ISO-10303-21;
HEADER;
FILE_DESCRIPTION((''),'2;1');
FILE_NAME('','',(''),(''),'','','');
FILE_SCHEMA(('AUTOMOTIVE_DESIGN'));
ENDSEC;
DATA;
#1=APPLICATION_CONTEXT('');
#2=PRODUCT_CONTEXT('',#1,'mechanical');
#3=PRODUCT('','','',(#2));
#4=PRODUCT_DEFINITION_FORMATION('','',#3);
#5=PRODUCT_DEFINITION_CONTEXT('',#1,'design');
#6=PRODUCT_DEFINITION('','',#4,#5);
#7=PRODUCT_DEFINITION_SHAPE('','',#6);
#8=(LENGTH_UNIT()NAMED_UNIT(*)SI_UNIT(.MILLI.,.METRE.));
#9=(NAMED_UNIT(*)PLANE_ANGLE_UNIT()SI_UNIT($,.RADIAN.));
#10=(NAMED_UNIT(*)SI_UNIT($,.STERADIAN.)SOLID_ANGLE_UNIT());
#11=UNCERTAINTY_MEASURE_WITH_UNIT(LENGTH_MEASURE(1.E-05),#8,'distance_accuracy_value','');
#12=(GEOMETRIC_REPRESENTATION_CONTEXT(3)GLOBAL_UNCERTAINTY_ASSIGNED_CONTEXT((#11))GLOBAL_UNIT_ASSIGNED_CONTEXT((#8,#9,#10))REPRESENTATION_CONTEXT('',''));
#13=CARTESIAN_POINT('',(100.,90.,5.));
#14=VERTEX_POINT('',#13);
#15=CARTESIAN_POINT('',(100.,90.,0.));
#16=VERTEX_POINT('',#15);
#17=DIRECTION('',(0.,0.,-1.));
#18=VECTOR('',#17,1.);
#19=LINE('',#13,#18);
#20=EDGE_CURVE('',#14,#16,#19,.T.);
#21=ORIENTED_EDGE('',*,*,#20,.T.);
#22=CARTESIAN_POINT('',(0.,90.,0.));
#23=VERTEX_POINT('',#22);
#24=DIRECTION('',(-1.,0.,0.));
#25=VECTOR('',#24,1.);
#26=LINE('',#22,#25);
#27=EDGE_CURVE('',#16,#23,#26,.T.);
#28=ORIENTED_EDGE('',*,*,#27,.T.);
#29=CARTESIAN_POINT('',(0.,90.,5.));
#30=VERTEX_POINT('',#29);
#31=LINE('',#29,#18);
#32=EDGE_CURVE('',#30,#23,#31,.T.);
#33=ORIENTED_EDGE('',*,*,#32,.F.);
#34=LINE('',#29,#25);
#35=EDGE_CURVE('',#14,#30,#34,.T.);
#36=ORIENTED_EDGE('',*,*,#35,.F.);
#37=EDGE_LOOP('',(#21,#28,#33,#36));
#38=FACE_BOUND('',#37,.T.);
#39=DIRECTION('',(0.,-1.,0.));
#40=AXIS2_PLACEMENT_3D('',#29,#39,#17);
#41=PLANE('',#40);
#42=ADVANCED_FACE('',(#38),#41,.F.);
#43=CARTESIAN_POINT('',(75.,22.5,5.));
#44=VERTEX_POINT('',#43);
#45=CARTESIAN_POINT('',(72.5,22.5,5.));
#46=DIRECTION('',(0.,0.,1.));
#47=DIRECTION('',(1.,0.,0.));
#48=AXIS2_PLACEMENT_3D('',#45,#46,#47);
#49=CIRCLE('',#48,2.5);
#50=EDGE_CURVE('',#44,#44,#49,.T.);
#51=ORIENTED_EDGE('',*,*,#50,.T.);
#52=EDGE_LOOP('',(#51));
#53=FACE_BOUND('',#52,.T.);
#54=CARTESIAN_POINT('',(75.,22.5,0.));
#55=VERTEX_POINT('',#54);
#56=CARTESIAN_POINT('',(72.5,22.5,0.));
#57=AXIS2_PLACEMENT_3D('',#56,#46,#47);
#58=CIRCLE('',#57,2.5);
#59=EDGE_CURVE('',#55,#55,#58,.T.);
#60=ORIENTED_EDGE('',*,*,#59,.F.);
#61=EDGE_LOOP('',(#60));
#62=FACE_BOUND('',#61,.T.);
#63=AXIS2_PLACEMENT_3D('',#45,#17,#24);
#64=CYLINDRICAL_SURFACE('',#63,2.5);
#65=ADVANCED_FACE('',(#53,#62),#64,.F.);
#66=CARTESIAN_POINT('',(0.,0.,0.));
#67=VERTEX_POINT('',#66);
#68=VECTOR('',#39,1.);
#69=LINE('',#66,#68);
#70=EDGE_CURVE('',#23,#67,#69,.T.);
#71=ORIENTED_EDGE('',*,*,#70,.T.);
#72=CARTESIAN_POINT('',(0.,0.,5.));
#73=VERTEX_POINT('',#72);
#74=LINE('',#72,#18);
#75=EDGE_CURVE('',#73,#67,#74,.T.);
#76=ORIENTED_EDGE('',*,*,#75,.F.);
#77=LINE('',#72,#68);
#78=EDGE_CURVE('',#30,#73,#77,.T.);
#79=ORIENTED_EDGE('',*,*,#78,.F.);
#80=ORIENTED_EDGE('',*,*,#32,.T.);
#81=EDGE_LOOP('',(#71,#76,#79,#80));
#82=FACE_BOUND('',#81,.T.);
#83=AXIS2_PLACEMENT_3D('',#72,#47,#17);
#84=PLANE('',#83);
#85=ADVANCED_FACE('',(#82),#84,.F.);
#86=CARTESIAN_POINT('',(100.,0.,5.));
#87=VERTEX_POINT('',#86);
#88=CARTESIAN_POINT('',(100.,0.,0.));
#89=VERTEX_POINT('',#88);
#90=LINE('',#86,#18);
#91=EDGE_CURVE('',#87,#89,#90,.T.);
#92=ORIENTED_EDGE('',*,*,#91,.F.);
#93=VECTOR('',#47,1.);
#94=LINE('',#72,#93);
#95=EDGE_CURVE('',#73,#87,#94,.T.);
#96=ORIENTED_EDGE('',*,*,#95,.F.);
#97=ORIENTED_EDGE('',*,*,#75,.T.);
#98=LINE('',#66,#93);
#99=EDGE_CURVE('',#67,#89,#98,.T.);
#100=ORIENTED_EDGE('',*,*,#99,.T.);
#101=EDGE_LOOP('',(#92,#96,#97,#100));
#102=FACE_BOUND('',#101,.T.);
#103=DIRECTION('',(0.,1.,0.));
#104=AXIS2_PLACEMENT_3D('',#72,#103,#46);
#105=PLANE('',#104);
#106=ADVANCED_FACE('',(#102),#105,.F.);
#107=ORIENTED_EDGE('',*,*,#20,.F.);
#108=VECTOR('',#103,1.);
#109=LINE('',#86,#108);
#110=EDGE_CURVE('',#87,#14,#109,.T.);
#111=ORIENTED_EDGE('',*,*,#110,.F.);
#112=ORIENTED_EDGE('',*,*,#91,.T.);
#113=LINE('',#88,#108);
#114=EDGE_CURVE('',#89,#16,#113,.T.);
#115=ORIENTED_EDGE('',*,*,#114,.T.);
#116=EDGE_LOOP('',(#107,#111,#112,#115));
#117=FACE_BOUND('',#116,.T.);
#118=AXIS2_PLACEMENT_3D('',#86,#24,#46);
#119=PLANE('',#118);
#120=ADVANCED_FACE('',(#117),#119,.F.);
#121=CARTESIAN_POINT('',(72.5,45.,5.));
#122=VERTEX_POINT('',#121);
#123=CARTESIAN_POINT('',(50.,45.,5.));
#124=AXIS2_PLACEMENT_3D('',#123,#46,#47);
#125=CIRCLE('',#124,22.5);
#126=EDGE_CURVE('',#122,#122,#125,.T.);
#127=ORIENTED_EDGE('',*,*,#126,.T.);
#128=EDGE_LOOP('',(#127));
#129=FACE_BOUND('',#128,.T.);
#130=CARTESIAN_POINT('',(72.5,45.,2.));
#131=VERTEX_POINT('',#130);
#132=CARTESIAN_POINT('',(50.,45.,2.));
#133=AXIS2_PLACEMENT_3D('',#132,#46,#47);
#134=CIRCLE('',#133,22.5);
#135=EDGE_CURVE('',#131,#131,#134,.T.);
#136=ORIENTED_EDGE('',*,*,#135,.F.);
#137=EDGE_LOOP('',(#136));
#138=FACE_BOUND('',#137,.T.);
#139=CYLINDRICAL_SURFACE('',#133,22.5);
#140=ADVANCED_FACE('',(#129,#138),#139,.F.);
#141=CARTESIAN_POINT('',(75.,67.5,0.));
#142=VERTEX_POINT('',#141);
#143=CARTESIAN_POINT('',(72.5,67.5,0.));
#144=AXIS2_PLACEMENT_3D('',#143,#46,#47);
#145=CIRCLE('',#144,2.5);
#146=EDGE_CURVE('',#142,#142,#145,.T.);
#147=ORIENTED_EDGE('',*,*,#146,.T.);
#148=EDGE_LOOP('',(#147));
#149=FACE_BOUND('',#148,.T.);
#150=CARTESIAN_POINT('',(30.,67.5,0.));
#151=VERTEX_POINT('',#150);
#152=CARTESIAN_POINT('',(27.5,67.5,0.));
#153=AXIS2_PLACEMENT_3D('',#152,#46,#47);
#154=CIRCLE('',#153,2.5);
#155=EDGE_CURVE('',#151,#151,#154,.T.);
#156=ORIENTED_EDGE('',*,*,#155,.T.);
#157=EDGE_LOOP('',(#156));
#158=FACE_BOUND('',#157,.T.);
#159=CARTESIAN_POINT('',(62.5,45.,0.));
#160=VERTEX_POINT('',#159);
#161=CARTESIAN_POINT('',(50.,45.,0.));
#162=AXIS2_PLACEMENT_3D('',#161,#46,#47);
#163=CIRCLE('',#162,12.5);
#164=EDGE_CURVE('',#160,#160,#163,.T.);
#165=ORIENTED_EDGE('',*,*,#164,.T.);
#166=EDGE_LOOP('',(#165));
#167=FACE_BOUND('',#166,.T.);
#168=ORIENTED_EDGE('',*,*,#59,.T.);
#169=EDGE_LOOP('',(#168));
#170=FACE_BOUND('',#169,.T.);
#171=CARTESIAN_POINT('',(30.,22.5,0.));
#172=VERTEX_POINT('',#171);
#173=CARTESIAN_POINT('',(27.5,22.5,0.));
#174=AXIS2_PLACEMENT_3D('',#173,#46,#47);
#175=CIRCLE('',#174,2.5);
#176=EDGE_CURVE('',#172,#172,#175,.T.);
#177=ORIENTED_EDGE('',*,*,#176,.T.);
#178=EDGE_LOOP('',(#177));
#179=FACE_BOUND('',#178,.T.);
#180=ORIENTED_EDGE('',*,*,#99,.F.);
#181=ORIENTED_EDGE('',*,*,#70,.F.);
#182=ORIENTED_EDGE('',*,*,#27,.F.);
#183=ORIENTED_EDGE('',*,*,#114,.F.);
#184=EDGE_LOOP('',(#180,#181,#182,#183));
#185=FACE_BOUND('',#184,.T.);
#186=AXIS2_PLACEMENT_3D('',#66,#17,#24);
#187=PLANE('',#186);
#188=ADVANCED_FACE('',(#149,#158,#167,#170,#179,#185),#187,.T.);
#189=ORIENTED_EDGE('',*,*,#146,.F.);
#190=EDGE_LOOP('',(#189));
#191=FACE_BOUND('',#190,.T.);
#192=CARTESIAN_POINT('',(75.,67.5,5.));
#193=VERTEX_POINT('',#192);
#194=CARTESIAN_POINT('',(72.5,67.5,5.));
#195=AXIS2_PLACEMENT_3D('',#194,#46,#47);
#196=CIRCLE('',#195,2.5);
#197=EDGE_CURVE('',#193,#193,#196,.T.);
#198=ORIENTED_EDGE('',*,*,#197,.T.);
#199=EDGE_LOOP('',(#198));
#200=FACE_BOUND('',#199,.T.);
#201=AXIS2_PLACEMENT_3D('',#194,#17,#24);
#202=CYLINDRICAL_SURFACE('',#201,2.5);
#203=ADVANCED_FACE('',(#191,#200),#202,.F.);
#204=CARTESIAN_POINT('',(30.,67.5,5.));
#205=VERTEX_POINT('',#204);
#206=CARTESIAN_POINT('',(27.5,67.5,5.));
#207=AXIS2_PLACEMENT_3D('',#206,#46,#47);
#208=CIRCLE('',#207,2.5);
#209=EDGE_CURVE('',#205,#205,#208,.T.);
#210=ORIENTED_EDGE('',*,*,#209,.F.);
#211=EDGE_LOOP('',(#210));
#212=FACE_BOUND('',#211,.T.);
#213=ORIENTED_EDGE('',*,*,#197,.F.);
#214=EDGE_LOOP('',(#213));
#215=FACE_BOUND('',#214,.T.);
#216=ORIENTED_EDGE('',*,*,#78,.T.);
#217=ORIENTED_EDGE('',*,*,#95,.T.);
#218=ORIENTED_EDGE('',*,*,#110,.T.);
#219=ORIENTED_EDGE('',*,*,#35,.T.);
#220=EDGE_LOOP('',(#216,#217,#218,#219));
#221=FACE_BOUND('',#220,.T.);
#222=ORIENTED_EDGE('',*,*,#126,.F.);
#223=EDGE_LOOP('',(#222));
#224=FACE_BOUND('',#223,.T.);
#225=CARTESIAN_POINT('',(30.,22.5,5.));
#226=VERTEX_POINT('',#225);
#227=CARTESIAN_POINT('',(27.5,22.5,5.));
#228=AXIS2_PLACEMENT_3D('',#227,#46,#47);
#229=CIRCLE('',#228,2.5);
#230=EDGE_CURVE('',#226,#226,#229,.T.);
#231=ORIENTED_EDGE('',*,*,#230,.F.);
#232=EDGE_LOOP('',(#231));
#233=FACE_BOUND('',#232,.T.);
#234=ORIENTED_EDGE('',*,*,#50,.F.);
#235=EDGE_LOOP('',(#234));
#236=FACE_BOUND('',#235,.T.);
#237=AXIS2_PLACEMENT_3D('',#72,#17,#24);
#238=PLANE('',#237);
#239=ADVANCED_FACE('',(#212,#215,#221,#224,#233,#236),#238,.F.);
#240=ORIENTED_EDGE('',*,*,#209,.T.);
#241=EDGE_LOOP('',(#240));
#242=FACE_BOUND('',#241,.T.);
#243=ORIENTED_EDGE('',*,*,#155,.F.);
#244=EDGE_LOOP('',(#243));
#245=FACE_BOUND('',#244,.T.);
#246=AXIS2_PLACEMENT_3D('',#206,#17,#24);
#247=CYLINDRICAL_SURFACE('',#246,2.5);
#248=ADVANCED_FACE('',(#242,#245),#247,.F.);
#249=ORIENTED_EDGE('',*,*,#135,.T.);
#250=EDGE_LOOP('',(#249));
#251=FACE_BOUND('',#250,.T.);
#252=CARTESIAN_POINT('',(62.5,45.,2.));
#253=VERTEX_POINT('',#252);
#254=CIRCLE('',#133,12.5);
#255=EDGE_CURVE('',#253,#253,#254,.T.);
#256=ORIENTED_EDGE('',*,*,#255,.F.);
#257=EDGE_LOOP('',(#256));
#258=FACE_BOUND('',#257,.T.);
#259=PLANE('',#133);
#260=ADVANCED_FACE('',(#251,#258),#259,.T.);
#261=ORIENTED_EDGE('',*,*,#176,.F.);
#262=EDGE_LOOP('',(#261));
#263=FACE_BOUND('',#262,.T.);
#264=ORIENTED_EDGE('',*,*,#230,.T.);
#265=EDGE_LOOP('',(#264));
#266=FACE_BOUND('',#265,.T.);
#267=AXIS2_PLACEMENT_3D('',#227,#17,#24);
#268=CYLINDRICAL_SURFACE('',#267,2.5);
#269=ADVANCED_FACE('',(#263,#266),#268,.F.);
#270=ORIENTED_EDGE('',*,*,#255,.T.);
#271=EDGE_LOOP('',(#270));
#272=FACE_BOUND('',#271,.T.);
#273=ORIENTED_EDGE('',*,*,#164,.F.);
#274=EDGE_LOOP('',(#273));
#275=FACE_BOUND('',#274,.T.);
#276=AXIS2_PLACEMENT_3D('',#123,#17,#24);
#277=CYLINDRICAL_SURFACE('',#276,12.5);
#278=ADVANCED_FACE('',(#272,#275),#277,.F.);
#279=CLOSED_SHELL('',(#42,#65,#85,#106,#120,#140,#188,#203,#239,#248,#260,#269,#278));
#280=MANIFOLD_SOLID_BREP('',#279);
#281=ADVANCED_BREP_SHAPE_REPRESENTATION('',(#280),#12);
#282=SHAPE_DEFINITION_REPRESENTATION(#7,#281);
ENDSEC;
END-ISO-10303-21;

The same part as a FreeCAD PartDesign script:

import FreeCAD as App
import Part
import Sketcher
Q = App.Units.Quantity


def add_polygon(sketch, points):
    """Adds a closed chain of lines whose ends are joined by coincident constraints."""
    first, n = sketch.GeometryCount, len(points)
    for a, b in zip(points, points[1:] + points[:1]):
        sketch.addGeometry(Part.LineSegment(App.Vector(*a, 0), App.Vector(*b, 0)), False)
    for i in range(n):
        sketch.addConstraint(Sketcher.Constraint("Coincident", first + i, 2, first + (i + 1) % n, 1))

doc = App.newDocument("Part")
params = doc.addObject("Spreadsheet::Sheet", "Params")
for row, (alias, value) in enumerate([
    ("sketch1_diameter", "5 mm"),
    ("sketch1_diameter2", "25 mm"),
    ("sketch1_width", "100 mm"),
    ("sketch1_height", "90 mm"),
    ("pad1_length", "5 mm"),
    ("sketch2_diameter", "45 mm"),
    ("pocket1_length", "3 mm"),
], start=1):
    params.set(f"A{row}", alias)
    params.set(f"B{row}", "=" + value)
    params.setAlias(f"B{row}", alias)

body = doc.addObject("PartDesign::Body", "Body")

# Sketch on XY plane
sketch1 = body.newObject("Sketcher::SketchObject", "Sketch")
sketch1.AttachmentSupport = (doc.getObject("XY_Plane"), [""])
sketch1.MapMode = "FlatFace"
add_polygon(sketch1, [(0, 90), (0, 0), (100, 0), (100, 90)])  # lines 0-3
sketch1.addGeometry(Part.Circle(App.Vector(27.5, 22.5, 0), App.Vector(0, 0, 1), 2.5), False)  # 4
sketch1.addGeometry(Part.Circle(App.Vector(72.5, 22.5, 0), App.Vector(0, 0, 1), 2.5), False)  # 5
sketch1.addGeometry(Part.Circle(App.Vector(27.5, 67.5, 0), App.Vector(0, 0, 1), 2.5), False)  # 6
sketch1.addGeometry(Part.Circle(App.Vector(50, 45, 0), App.Vector(0, 0, 1), 12.5), False)  # 7
sketch1.addGeometry(Part.Circle(App.Vector(72.5, 67.5, 0), App.Vector(0, 0, 1), 2.5), False)  # 8
sketch1.addConstraint([
    Sketcher.Constraint("Vertical", 0),
    Sketcher.Constraint("Horizontal", 1),
    Sketcher.Constraint("Vertical", 2),
    Sketcher.Constraint("Horizontal", 3),
    Sketcher.Constraint("Coincident", 0, 2, -1, 1),
    Sketcher.Constraint("Equal", 4, 5),
    Sketcher.Constraint("Equal", 5, 6),
    Sketcher.Constraint("Equal", 6, 8),
    Sketcher.Constraint("Horizontal", 4, 3, 5, 3),
    Sketcher.Constraint("Horizontal", 6, 3, 8, 3),
    Sketcher.Constraint("Vertical", 4, 3, 6, 3),
    Sketcher.Constraint("Vertical", 5, 3, 8, 3),
    Sketcher.Constraint("Diameter", 4, Q("5 mm")),
    Sketcher.Constraint("Diameter", 7, Q("25 mm")),
    Sketcher.Constraint("DistanceX", 1, 1, 1, 2, Q("100 mm")),
    Sketcher.Constraint("DistanceY", 0, 2, 0, 1, Q("90 mm")),
    Sketcher.Constraint("DistanceX", -1, 1, 7, 3, Q("50 mm")),
    Sketcher.Constraint("DistanceY", -1, 1, 7, 3, Q("45 mm")),
    Sketcher.Constraint("DistanceX", 4, 3, 5, 3, Q("45 mm")),
    Sketcher.Constraint("DistanceY", 4, 3, 6, 3, Q("45 mm")),
    Sketcher.Constraint("DistanceX", -1, 1, 4, 3, Q("27.5 mm")),
    Sketcher.Constraint("DistanceY", -1, 1, 4, 3, Q("22.5 mm")),
])
sketch1.setExpression("Constraints[16]", "Params.sketch1_diameter")
sketch1.setExpression("Constraints[17]", "Params.sketch1_diameter2")
sketch1.setExpression("Constraints[18]", "Params.sketch1_width")
sketch1.setExpression("Constraints[19]", "Params.sketch1_height")
pad1 = body.newObject("PartDesign::Pad", "Pad")
pad1.Profile = sketch1
pad1.setExpression("Length", "Params.pad1_length")

# Sketch on XY plane
sketch2 = body.newObject("Sketcher::SketchObject", "Sketch001")
sketch2.AttachmentSupport = (doc.getObject("XY_Plane"), [""])
sketch2.MapMode = "FlatFace"
sketch2.AttachmentOffset = App.Placement(App.Vector(0, 0, 5), App.Rotation())
sketch2.addGeometry(Part.Circle(App.Vector(50, 45, 0), App.Vector(0, 0, 1), 22), False)
sketch2.addConstraint([
    Sketcher.Constraint("Diameter", 0, Q("45 mm")),
    Sketcher.Constraint("DistanceX", -1, 1, 0, 3, Q("50 mm")),
    Sketcher.Constraint("DistanceY", -1, 1, 0, 3, Q("45 mm")),
])
sketch2.setExpression("Constraints[0]", "Params.sketch2_diameter")
pocket1 = body.newObject("PartDesign::Pocket", "Pocket")
pocket1.Profile = sketch2
pocket1.setExpression("Length", "Params.pocket1_length")

doc.recompute()
